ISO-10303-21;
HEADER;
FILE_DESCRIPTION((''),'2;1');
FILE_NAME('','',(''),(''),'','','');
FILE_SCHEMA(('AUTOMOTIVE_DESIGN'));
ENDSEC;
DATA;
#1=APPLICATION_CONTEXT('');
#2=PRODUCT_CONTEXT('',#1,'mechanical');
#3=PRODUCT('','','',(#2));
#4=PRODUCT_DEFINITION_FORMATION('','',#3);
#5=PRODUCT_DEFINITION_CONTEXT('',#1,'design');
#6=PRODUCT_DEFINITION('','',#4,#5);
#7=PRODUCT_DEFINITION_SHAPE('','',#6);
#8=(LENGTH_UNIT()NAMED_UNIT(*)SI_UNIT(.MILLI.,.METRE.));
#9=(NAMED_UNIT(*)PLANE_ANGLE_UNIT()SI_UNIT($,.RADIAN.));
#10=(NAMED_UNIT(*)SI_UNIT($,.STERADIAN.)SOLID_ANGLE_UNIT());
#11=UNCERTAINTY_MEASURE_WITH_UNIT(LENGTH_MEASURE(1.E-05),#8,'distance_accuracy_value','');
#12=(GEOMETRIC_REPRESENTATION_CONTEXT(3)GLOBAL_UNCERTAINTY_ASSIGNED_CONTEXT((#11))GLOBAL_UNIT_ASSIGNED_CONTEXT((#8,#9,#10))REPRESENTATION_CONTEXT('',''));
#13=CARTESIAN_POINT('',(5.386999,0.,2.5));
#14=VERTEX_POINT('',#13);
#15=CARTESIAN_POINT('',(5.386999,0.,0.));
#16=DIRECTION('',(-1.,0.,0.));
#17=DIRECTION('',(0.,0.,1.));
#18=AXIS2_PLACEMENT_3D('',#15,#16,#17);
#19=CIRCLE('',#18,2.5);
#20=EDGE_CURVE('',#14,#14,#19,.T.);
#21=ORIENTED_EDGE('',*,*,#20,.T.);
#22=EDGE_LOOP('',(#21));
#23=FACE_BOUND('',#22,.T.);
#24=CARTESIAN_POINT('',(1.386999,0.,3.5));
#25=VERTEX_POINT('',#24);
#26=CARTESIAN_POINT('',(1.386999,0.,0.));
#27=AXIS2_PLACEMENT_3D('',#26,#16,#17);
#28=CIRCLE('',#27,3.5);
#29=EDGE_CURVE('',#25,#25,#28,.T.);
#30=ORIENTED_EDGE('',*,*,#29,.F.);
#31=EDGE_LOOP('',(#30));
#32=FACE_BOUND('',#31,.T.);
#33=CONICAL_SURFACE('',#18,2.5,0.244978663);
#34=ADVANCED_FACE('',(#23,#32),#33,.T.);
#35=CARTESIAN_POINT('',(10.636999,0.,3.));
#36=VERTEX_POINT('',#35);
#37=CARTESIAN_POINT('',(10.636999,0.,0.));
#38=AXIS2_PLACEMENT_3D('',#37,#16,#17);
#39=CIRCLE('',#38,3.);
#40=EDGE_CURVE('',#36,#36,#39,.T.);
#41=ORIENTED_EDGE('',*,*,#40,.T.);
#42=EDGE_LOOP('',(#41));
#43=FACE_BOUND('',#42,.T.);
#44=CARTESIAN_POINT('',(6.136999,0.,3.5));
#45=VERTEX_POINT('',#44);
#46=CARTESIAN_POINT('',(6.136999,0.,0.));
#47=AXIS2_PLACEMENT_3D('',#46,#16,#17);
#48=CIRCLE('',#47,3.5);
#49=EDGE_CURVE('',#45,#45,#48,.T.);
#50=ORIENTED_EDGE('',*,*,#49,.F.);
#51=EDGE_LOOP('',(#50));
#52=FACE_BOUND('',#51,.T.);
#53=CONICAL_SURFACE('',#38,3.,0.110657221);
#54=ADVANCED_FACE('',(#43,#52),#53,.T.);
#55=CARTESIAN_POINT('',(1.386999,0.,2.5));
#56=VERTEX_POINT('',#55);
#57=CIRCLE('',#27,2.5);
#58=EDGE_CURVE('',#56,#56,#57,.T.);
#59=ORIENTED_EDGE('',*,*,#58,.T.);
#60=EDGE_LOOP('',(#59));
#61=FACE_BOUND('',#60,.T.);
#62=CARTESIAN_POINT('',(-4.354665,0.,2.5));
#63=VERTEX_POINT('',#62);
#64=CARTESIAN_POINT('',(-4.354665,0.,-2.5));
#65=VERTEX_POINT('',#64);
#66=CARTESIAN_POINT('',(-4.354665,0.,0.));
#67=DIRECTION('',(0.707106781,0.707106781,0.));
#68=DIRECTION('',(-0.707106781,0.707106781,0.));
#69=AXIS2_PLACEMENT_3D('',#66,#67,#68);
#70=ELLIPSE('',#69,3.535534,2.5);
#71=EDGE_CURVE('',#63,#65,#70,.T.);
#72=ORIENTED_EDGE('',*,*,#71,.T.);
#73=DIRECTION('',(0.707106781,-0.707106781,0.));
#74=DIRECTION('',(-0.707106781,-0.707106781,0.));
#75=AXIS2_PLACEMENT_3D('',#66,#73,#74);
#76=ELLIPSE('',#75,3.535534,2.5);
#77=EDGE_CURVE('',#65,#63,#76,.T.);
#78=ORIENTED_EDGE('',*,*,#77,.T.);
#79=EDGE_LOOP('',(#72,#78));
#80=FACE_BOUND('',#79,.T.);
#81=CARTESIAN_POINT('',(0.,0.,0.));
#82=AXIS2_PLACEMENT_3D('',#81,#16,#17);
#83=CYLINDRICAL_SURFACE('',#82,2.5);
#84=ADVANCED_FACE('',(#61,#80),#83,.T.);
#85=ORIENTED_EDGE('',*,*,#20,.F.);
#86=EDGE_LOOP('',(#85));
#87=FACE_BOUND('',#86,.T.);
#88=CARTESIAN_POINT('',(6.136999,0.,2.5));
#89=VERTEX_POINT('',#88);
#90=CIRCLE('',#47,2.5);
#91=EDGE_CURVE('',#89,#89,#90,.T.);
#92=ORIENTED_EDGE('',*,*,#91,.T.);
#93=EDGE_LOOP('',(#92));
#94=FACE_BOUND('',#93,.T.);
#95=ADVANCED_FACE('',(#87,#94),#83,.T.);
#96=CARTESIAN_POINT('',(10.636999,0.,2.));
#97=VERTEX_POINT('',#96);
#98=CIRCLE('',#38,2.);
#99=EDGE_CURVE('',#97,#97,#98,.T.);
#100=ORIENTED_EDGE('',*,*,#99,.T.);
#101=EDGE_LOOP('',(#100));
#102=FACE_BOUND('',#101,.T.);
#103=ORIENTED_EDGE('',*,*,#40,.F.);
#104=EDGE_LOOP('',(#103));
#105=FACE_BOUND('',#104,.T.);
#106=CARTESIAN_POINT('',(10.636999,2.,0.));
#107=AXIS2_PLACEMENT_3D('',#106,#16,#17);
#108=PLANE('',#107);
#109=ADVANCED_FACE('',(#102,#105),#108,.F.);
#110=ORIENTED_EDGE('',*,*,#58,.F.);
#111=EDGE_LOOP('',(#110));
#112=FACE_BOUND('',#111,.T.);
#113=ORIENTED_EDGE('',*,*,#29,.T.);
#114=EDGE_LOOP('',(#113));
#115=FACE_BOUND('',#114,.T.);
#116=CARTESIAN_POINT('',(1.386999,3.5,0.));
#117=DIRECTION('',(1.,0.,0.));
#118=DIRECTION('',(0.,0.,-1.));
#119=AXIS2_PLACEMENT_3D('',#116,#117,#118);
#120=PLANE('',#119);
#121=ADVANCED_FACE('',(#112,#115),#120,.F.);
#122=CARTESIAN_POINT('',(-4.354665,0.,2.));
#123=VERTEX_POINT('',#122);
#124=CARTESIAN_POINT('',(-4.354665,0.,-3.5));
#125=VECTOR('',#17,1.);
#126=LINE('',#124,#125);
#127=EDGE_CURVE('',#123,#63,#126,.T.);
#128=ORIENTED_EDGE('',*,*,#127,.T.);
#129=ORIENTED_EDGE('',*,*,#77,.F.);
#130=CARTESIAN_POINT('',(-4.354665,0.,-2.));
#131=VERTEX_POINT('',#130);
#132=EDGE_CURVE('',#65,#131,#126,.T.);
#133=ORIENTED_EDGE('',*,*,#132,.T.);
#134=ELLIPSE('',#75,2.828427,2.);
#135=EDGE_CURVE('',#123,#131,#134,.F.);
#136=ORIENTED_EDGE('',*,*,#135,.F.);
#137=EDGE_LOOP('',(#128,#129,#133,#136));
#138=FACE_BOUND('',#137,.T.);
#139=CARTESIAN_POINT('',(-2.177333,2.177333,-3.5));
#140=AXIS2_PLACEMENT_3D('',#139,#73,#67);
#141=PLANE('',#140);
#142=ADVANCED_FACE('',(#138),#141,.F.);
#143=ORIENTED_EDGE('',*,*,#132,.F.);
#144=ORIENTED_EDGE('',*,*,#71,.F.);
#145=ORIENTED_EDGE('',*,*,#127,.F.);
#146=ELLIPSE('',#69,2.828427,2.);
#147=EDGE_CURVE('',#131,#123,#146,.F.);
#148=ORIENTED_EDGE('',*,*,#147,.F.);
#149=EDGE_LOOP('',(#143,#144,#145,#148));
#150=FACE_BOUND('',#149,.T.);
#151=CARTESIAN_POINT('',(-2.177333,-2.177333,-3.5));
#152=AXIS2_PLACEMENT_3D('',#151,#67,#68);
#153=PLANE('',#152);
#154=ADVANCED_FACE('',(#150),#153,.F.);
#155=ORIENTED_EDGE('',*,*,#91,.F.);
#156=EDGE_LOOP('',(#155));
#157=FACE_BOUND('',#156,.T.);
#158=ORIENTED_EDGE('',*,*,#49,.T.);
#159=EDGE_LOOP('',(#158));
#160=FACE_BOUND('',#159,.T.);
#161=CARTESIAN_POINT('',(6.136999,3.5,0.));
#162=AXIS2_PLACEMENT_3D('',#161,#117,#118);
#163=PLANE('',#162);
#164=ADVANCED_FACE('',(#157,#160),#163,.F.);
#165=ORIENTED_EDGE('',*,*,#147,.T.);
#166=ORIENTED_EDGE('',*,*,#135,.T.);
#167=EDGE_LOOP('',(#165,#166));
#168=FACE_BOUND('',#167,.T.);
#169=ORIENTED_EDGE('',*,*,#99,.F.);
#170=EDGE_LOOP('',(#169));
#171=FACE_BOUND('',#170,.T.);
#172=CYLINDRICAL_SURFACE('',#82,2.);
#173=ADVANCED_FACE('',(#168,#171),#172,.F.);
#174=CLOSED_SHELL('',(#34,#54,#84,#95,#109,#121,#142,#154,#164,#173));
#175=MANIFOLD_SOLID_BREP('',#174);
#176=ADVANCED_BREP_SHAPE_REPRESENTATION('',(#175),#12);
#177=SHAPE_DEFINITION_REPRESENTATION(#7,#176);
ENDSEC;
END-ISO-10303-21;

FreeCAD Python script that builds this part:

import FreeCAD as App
import Part
import Sketcher

V = App.Vector

doc = App.newDocument("Part")
params = doc.addObject("Spreadsheet::Sheet", "Params")
for row, (alias, value) in enumerate([
    ("sketch1_height", "1 mm"),
    ("sketch1_height2", "0.5 mm"),
    ("sketch1_width", "0.75 mm"),
    ("revolution_angle", "360 deg"),
    ("sketch2_width", "2.5 mm"),
], start=1):
    params.set(f"A{row}", alias)
    params.set(f"B{row}", "=" + value)
    params.setAlias(f"B{row}", alias)

body = doc.addObject("PartDesign::Body", "Body")

# Sketch on XY plane
sketch1 = body.newObject("Sketcher::SketchObject", "Sketch")
sketch1.AttachmentSupport = (doc.getObject("XY_Plane"), [""])
sketch1.MapMode = "FlatFace"
sketch1.addGeometry(Part.LineSegment(V(10.6, 3, 0), V(6.1, 3.5, 0)), False)
sketch1.addGeometry(Part.LineSegment(V(6.1, 3.5, 0), V(6.1, 2.5, 0)), False)
sketch1.addGeometry(Part.LineSegment(V(6.1, 2.5, 0), V(5.4, 2.5, 0)), False)
sketch1.addGeometry(Part.LineSegment(V(5.4, 2.5, 0), V(1.4, 3.5, 0)), False)
sketch1.addGeometry(Part.LineSegment(V(1.4, 3.5, 0), V(1.4, 2.5, 0)), False)
sketch1.addGeometry(Part.LineSegment(V(1.4, 2.5, 0), V(-4.4, 2.5, 0)), False)
sketch1.addGeometry(Part.LineSegment(V(-4.4, 2.5, 0), V(-4.4, 2, 0)), False)
sketch1.addGeometry(Part.LineSegment(V(-4.4, 2, 0), V(10.6, 2, 0)), False)
sketch1.addGeometry(Part.LineSegment(V(10.6, 2, 0), V(10.6, 3, 0)), False)
sketch1.addConstraint(Sketcher.Constraint("Coincident", 0, 2, 1, 1))
sketch1.addConstraint(Sketcher.Constraint("Coincident", 1, 2, 2, 1))
sketch1.addConstraint(Sketcher.Constraint("Coincident", 2, 2, 3, 1))
sketch1.addConstraint(Sketcher.Constraint("Coincident", 3, 2, 4, 1))
sketch1.addConstraint(Sketcher.Constraint("Coincident", 4, 2, 5, 1))
sketch1.addConstraint(Sketcher.Constraint("Coincident", 5, 2, 6, 1))
sketch1.addConstraint(Sketcher.Constraint("Coincident", 6, 2, 7, 1))
sketch1.addConstraint(Sketcher.Constraint("Coincident", 7, 2, 8, 1))
sketch1.addConstraint(Sketcher.Constraint("Coincident", 8, 2, 0, 1))
sketch1.addConstraint(Sketcher.Constraint("Vertical", 1))
sketch1.addConstraint(Sketcher.Constraint("Horizontal", 2))
sketch1.addConstraint(Sketcher.Constraint("Vertical", 4))
sketch1.addConstraint(Sketcher.Constraint("Horizontal", 5))
sketch1.addConstraint(Sketcher.Constraint("Vertical", 6))
sketch1.addConstraint(Sketcher.Constraint("Horizontal", 7))
sketch1.addConstraint(Sketcher.Constraint("Vertical", 8))
sketch1.addConstraint(Sketcher.Constraint("Horizontal", 0, 2, 3, 2))
sketch1.addConstraint(Sketcher.Constraint("Horizontal", 2, 2, 4, 2))
sketch1.addConstraint(Sketcher.Constraint("Equal", 4, 8))
sketch1.addConstraint(Sketcher.Constraint("DistanceY", 1, 2, 1, 1, 1.0))
sketch1.addConstraint(Sketcher.Constraint("DistanceY", 6, 2, 6, 1, 0.5))
sketch1.addConstraint(Sketcher.Constraint("DistanceY", -1, 1, 6, 2, 2.0))
sketch1.addConstraint(Sketcher.Constraint("DistanceX", 3, 2, 2, 2, 4.0))
sketch1.addConstraint(Sketcher.Constraint("DistanceX", 2, 2, 2, 1, 0.75))
sketch1.addConstraint(Sketcher.Constraint("DistanceX", 1, 2, 7, 2, 4.5))
sketch1.addConstraint(Sketcher.Constraint("DistanceX", -1, 1, 0, 2, 6.136999))
sketch1.addConstraint(Sketcher.Constraint("DistanceX", 5, 2, 5, 1, 5.741664))
sketch1.setExpression("Constraints[19]", "Params.sketch1_height")
sketch1.setExpression("Constraints[20]", "Params.sketch1_height2")
sketch1.setExpression("Constraints[23]", "Params.sketch1_width")
revolution = body.newObject("PartDesign::Revolution", "Revolution")
revolution.Profile = sketch1
revolution.ReferenceAxis = (sketch1, ["H_Axis"])
revolution.setExpression("Angle", "Params.revolution_angle")

# Sketch on XY plane
sketch2 = body.newObject("Sketcher::SketchObject", "Sketch001")
sketch2.AttachmentSupport = (doc.getObject("XY_Plane"), [""])
sketch2.MapMode = "FlatFace"
sketch2.addGeometry(Part.LineSegment(V(-1.9, 2.5, 0), V(-4.4, 2.5, 0)), False)
sketch2.addGeometry(Part.LineSegment(V(-4.4, 2.5, 0), V(-4.4, 0, 0)), False)
sketch2.addGeometry(Part.LineSegment(V(-4.4, 0, 0), V(-1.9, 2.5, 0)), False)
sketch2.addGeometry(Part.LineSegment(V(-4.4, 0, 0), V(-4.4, -2.5, 0)), False)
sketch2.addGeometry(Part.LineSegment(V(-4.4, -2.5, 0), V(-1.9, -2.5, 0)), False)
sketch2.addGeometry(Part.LineSegment(V(-1.9, -2.5, 0), V(-4.4, 0, 0)), False)
sketch2.addConstraint(Sketcher.Constraint("Coincident", 0, 2, 1, 1))
sketch2.addConstraint(Sketcher.Constraint("Coincident", 1, 2, 2, 1))
sketch2.addConstraint(Sketcher.Constraint("Coincident", 2, 2, 0, 1))
sketch2.addConstraint(Sketcher.Constraint("Coincident", 3, 2, 4, 1))
sketch2.addConstraint(Sketcher.Constraint("Coincident", 4, 2, 5, 1))
sketch2.addConstraint(Sketcher.Constraint("Coincident", 5, 2, 3, 1))
sketch2.addConstraint(Sketcher.Constraint("Horizontal", 0))
sketch2.addConstraint(Sketcher.Constraint("Vertical", 1))
sketch2.addConstraint(Sketcher.Constraint("Vertical", 3))
sketch2.addConstraint(Sketcher.Constraint("Horizontal", 4))
sketch2.addConstraint(Sketcher.Constraint("Coincident", 5, 2, 1, 2))
sketch2.addConstraint(Sketcher.Constraint("Symmetric", 2, 2, 4, 2, -1))
sketch2.addConstraint(Sketcher.Constraint("PointOnObject", 1, 2, -1))
sketch2.addConstraint(Sketcher.Constraint("Perpendicular", 2, 5))
sketch2.addConstraint(Sketcher.Constraint("DistanceX", 0, 2, 0, 1, 2.5))
sketch2.addConstraint(Sketcher.Constraint("DistanceX", 0, 2, -1, 1, 4.354665))
sketch2.setExpression("Constraints[14]", "Params.sketch2_width")
pocket1 = body.newObject("PartDesign::Pocket", "Pocket")
pocket1.Profile = sketch2
pocket1.Type = "ThroughAll"
pocket1.Midplane = True

doc.recompute()
